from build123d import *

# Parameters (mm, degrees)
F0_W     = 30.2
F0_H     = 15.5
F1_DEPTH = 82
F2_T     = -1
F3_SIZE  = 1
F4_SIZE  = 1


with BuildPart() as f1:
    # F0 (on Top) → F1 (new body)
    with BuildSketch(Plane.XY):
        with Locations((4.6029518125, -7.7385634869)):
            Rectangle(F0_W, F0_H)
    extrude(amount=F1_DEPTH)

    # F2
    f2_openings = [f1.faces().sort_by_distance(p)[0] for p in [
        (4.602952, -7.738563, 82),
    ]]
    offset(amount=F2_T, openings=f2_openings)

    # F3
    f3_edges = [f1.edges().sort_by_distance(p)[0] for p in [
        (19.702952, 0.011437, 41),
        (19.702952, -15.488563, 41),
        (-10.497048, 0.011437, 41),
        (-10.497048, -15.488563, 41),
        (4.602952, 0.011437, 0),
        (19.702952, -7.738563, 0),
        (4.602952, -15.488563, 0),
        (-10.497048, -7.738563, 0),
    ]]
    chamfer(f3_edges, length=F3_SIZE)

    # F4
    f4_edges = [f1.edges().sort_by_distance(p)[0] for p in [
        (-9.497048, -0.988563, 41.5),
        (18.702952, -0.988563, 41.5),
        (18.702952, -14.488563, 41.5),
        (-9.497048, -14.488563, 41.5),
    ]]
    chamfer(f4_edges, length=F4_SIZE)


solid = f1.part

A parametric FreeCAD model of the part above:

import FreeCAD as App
import Part
import Sketcher
from FreeCAD import Vector
Q = App.Units.Quantity


def edges_at(feature, points):
    """Names of the edges that pass closest to the given points."""
    edges = feature.Shape.Edges
    near = lambda p: min(range(len(edges)), key=lambda i: edges[i].distToShape(Part.Vertex(*p))[0])
    return sorted({f"Edge{near(p) + 1}" for p in points})


def faces_at(feature, points):
    """Names of the faces that lie closest to the given points."""
    faces = feature.Shape.Faces
    near = lambda p: min(range(len(faces)), key=lambda i: faces[i].distToShape(Part.Vertex(*p))[0])
    return sorted({f"Face{near(p) + 1}" for p in points})

doc = App.newDocument("Part")
body = doc.addObject("PartDesign::Body", "Body")

sketch1 = body.newObject("Sketcher::SketchObject", "Sketch")
sketch1.AttachmentSupport = (doc.getObject("XY_Plane"), [""])
sketch1.MapMode = "FlatFace"
sketch1.addGeometry([
    Part.LineSegment(Vector(-10.497048, 0.011437, 0), Vector(-10.497048, -15.488563, 0)),
    Part.LineSegment(Vector(-10.497048, -15.488563, 0), Vector(19.702952, -15.488563, 0)),
    Part.LineSegment(Vector(19.702952, -15.488563, 0), Vector(19.702952, 0.011437, 0)),
    Part.LineSegment(Vector(19.702952, 0.011437, 0), Vector(-10.497048, 0.011437, 0)),
], False)
sketch1.addConstraint([
    Sketcher.Constraint("Coincident", 0, 2, 1, 1),
    Sketcher.Constraint("Coincident", 1, 2, 2, 1),
    Sketcher.Constraint("Coincident", 2, 2, 3, 1),
    Sketcher.Constraint("Coincident", 3, 2, 0, 1),
    Sketcher.Constraint("Vertical", 0),
    Sketcher.Constraint("Horizontal", 1),
    Sketcher.Constraint("Vertical", 2),
    Sketcher.Constraint("Horizontal", 3),
    Sketcher.Constraint("DistanceX", 1, 1, 1, 2, Q("30.2 mm")),
    Sketcher.Constraint("DistanceY", 0, 2, 0, 1, Q("15.5 mm")),
    Sketcher.Constraint("DistanceX", 0, 2, -1, 1, Q("10.497048 mm")),
    Sketcher.Constraint("DistanceY", 0, 2, -1, 1, Q("15.488563 mm")),
])
pad1 = body.newObject("PartDesign::Pad", "Pad")
pad1.Profile = sketch1
pad1.Length = 82
doc.recompute()

thickness = body.newObject("PartDesign::Thickness", "Thickness")
thickness.Base = (pad1, faces_at(pad1, [(4.603, -7.739, 82)]))
thickness.Value = 1
thickness.Reversed = True
thickness.Join = "Arc"
doc.recompute()

chamfer = body.newObject("PartDesign::Chamfer", "Chamfer")
chamfer.Base = (thickness, edges_at(thickness, [
    (19.703, 0.011, 41),
    (19.703, -15.489, 41),
    (-10.497, 0.011, 41),
    (-10.497, -15.489, 41),
    (4.603, 0.011, 0),
    (19.703, -7.739, 0),
    (4.603, -15.489, 0),
    (-10.497, -7.739, 0),
]))
chamfer.Size = 1
doc.recompute()

chamfer2 = body.newObject("PartDesign::Chamfer", "Chamfer001")
chamfer2.Base = (chamfer, edges_at(chamfer, [
    (-9.497, -0.989, 41.5),
    (18.703, -0.989, 41.5),
    (18.703, -14.489, 41.5),
    (-9.497, -14.489, 41.5),
]))
chamfer2.Size = 1

doc.recompute()
